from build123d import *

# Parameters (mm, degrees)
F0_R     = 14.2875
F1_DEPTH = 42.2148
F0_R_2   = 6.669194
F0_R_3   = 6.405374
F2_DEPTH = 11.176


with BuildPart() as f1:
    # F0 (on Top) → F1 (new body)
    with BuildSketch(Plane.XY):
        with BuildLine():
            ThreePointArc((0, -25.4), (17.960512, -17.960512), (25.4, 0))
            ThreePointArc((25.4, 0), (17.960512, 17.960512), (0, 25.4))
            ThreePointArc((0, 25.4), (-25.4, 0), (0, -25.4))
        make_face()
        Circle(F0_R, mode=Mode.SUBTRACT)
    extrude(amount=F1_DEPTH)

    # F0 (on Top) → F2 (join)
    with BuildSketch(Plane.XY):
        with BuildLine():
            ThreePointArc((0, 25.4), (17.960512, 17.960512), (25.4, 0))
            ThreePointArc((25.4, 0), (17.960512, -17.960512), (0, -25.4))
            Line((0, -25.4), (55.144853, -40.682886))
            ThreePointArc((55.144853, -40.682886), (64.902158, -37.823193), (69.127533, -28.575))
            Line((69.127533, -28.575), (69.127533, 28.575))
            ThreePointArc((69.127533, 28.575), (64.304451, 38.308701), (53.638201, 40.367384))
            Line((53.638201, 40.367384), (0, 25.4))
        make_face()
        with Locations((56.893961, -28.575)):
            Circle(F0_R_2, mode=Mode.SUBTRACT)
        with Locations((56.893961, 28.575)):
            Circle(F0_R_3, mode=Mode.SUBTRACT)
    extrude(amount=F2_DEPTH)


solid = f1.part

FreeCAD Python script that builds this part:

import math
import FreeCAD as App
import Part
import Sketcher

V = App.Vector
Q = App.Units.Quantity

doc = App.newDocument("Part")
body = doc.addObject("PartDesign::Body", "Body")

sketch1 = body.newObject("Sketcher::SketchObject", "Sketch")
sketch1.AttachmentSupport = (doc.getObject("XY_Plane"), [""])
sketch1.MapMode = "FlatFace"
sketch1.addGeometry(Part.ArcOfCircle(Part.Circle(V(0, 0, 0), V(0, 0, 1), 25), math.radians(-90), math.radians(0)), False)
sketch1.addGeometry(Part.ArcOfCircle(Part.Circle(V(0, 0, 0), V(0, 0, 1), 25), math.radians(0), math.radians(90)), False)
sketch1.addGeometry(Part.ArcOfCircle(Part.Circle(V(0, 0, 0), V(0, 0, 1), 25), math.radians(90), math.radians(270)), False)
sketch1.addGeometry(Part.Circle(V(0, 0, 0), V(0, 0, 1), 14), False)
sketch1.addConstraint(Sketcher.Constraint("Tangent", 0, 2, 1, 1))
sketch1.addConstraint(Sketcher.Constraint("Tangent", 1, 2, 2, 1))
sketch1.addConstraint(Sketcher.Constraint("Tangent", 2, 2, 0, 1))
sketch1.addConstraint(Sketcher.Constraint("Coincident", 0, 3, -1, 1))
sketch1.addConstraint(Sketcher.Constraint("Coincident", 3, 3, -1, 1))
sketch1.addConstraint(Sketcher.Constraint("PointOnObject", 0, 2, -1))
sketch1.addConstraint(Sketcher.Constraint("PointOnObject", 1, 2, -2))
sketch1.addConstraint(Sketcher.Constraint("PointOnObject", 2, 2, -2))
sketch1.addConstraint(Sketcher.Constraint("Radius", 0, Q("1 in")))
sketch1.addConstraint(Sketcher.Constraint("Diameter", 3, Q("1.125 in")))
pad1 = body.newObject("PartDesign::Pad", "Pad")
pad1.Profile = sketch1
pad1.Length = Q("1.662 in")

sketch2 = body.newObject("Sketcher::SketchObject", "Sketch001")
sketch2.AttachmentSupport = (doc.getObject("XY_Plane"), [""])
sketch2.MapMode = "FlatFace"
sketch2.addGeometry(Part.ArcOfCircle(Part.Circle(V(0, 0, 0), V(0, 0, 1), 25), math.radians(0), math.radians(90)), False)
sketch2.addGeometry(Part.ArcOfCircle(Part.Circle(V(0, 0, 0), V(0, 0, 1), 25), math.radians(-90), math.radians(0)), False)
sketch2.addGeometry(Part.LineSegment(V(0, -25, 0), V(55, -41, 0)), False)
sketch2.addGeometry(Part.ArcOfCircle(Part.Circle(V(57, -29, 0), V(0, 0, 1), 12), math.radians(-98), math.radians(0)), False)
sketch2.addGeometry(Part.LineSegment(V(69, -29, 0), V(69, 29, 0)), False)
sketch2.addGeometry(Part.ArcOfCircle(Part.Circle(V(57, 29, 0), V(0, 0, 1), 12), math.radians(0), math.radians(105)), False)
sketch2.addGeometry(Part.LineSegment(V(54, 40, 0), V(0, 25, 0)), False)
sketch2.addGeometry(Part.Circle(V(57, -29, 0), V(0, 0, 1), 7), False)
sketch2.addGeometry(Part.Circle(V(57, 29, 0), V(0, 0, 1), 6), False)
sketch2.addConstraint(Sketcher.Constraint("Tangent", 0, 1, 1, 2))
sketch2.addConstraint(Sketcher.Constraint("Coincident", 1, 1, 2, 1))
sketch2.addConstraint(Sketcher.Constraint("Coincident", 2, 2, 3, 1))
sketch2.addConstraint(Sketcher.Constraint("Tangent", 3, 2, 4, 1))
sketch2.addConstraint(Sketcher.Constraint("Tangent", 4, 2, 5, 1))
sketch2.addConstraint(Sketcher.Constraint("Coincident", 5, 2, 6, 1))
sketch2.addConstraint(Sketcher.Constraint("Coincident", 6, 2, 0, 2))
sketch2.addConstraint(Sketcher.Constraint("Vertical", 4))
sketch2.addConstraint(Sketcher.Constraint("Coincident", 0, 3, -1, 1))
sketch2.addConstraint(Sketcher.Constraint("Coincident", 7, 3, 3, 3))
sketch2.addConstraint(Sketcher.Constraint("Coincident", 8, 3, 5, 3))
sketch2.addConstraint(Sketcher.Constraint("Equal", 0, 1))
sketch2.addConstraint(Sketcher.Constraint("Equal", 3, 5))
sketch2.addConstraint(Sketcher.Constraint("PointOnObject", 0, 1, -1))
sketch2.addConstraint(Sketcher.Constraint("PointOnObject", 1, 1, -2))
sketch2.addConstraint(Sketcher.Constraint("PointOnObject", 6, 2, -2))
sketch2.addConstraint(Sketcher.Constraint("Radius", 0, Q("1 in")))
sketch2.addConstraint(Sketcher.Constraint("DistanceY", 4, 1, 4, 2, Q("2.25 in")))
sketch2.addConstraint(Sketcher.Constraint("DistanceY", 3, 3, -1, 1, Q("1.125 in")))
sketch2.addConstraint(Sketcher.Constraint("Radius", 3, 12.233571))
sketch2.addConstraint(Sketcher.Constraint("Diameter", 7, 13.338388))
sketch2.addConstraint(Sketcher.Constraint("Diameter", 8, 12.810748))
sketch2.addConstraint(Sketcher.Constraint("DistanceX", -1, 1, 5, 2, 53.638201))
sketch2.addConstraint(Sketcher.Constraint("DistanceX", -1, 1, 3, 3, 56.893962))
sketch2.addConstraint(Sketcher.Constraint("DistanceX", 2, 2, 3, 3, 1.749109))
pad2 = body.newObject("PartDesign::Pad", "Pad001")
pad2.Profile = sketch2
pad2.Length = Q("0.44 in")

doc.recompute()
